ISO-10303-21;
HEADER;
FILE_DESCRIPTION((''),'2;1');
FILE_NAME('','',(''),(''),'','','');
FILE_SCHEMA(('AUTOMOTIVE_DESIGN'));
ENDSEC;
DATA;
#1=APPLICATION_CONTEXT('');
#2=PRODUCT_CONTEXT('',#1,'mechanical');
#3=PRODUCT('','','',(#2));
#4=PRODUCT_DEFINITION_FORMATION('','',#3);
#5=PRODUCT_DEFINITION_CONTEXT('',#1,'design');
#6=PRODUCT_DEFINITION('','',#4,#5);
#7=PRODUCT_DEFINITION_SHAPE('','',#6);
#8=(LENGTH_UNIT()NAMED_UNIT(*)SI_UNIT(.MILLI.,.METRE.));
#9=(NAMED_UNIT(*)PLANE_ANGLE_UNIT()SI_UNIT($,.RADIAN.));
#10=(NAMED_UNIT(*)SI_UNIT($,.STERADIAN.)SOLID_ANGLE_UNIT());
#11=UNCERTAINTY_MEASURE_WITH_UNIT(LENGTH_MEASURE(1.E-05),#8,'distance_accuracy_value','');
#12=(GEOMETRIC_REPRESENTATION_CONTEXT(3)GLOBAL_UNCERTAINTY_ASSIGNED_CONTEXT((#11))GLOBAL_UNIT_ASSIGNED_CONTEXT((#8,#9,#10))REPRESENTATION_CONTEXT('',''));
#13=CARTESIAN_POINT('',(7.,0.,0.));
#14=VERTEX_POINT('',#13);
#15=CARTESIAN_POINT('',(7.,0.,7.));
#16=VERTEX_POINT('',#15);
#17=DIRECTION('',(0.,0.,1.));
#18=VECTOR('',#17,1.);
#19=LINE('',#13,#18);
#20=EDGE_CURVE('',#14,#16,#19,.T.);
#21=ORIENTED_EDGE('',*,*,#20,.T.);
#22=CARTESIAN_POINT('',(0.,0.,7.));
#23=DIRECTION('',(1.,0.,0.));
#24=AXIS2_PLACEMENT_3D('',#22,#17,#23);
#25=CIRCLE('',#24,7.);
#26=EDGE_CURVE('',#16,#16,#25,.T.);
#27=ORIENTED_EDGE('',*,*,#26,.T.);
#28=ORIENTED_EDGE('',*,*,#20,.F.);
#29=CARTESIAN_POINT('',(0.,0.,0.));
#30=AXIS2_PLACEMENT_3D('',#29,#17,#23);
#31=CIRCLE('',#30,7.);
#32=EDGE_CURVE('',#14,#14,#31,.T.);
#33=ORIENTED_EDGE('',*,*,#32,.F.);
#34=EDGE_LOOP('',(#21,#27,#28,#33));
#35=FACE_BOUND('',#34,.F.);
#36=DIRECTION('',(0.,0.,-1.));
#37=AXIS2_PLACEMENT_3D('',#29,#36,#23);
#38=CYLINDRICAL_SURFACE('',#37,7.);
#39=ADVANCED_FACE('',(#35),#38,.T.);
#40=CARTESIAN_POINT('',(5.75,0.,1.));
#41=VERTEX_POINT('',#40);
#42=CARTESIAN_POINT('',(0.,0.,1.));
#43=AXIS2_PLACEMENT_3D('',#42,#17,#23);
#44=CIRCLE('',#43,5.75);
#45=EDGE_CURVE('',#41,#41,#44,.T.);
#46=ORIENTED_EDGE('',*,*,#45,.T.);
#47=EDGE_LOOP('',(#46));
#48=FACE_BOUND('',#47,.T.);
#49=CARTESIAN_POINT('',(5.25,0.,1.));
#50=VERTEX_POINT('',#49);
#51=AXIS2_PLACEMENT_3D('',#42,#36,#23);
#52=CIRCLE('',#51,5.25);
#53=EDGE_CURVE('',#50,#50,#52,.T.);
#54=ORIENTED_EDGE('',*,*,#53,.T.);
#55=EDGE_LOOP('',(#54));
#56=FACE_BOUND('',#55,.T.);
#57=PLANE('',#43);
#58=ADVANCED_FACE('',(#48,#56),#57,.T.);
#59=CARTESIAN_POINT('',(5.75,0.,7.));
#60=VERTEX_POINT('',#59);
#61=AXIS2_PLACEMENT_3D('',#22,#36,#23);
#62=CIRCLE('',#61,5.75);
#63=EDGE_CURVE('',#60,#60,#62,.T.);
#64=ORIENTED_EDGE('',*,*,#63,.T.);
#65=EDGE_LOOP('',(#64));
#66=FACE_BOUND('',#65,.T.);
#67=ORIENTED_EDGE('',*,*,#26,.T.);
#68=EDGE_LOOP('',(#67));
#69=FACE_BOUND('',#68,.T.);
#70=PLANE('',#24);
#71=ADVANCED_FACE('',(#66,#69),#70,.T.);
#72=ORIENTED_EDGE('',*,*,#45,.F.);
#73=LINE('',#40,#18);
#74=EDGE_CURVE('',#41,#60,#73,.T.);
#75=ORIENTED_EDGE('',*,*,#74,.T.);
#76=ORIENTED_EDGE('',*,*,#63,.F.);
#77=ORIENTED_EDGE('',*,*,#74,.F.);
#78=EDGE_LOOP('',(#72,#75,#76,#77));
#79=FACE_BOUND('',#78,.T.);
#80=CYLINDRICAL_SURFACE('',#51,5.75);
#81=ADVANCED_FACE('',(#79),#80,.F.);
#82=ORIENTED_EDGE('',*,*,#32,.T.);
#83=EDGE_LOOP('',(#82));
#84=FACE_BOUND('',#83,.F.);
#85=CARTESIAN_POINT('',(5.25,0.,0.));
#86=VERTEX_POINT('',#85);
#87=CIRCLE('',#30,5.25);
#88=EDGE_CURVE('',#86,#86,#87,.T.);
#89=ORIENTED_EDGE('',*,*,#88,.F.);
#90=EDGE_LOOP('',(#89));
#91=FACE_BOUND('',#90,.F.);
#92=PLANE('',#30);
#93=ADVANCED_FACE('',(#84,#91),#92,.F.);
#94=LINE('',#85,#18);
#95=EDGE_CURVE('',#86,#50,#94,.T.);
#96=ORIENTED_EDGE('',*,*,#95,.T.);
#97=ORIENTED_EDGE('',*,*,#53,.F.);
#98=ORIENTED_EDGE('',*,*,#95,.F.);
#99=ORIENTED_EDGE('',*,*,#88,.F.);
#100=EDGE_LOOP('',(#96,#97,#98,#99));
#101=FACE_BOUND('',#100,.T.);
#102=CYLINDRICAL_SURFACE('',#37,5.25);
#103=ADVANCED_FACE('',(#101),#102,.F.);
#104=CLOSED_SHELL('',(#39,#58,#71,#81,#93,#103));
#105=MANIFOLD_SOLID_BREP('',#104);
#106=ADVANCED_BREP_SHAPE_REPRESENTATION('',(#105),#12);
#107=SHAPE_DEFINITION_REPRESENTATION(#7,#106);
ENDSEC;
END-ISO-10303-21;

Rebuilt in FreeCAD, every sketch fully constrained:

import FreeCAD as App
import Part
import Sketcher

V = App.Vector

doc = App.newDocument("Part")
body = doc.addObject("PartDesign::Body", "Body")

sketch1 = body.newObject("Sketcher::SketchObject", "Sketch")
sketch1.AttachmentSupport = (doc.getObject("XY_Plane"), [""])
sketch1.MapMode = "FlatFace"
sketch1.addGeometry(Part.Circle(V(0, 0, 0), V(0, 0, 1), 5), False)
sketch1.addConstraint([
    Sketcher.Constraint("Coincident", 0, 3, -1, 1),
    Sketcher.Constraint("Diameter", 0, 10.5),
])
pad1 = body.newObject("PartDesign::Pad", "Pad")
pad1.Profile = sketch1
pad1.Length = 10
body2 = doc.addObject("PartDesign::Body", "Body001")

sketch2 = body2.newObject("Sketcher::SketchObject", "Sketch001")
sketch2.AttachmentSupport = (doc.getObject("XY_Plane001"), [""])
sketch2.MapMode = "FlatFace"
sketch2.AttachmentOffset = App.Placement(V(0, 0, 1), App.Rotation())
sketch2.addGeometry(Part.Circle(V(0, 0, 0), V(0, 0, 1), 6), False)
sketch2.addConstraint([
    Sketcher.Constraint("Coincident", 0, 3, -1, 1),
    Sketcher.Constraint("Diameter", 0, 11.5),
])
pad2 = body2.newObject("PartDesign::Pad", "Pad001")
pad2.Profile = sketch2
pad2.Length = 10
body3 = doc.addObject("PartDesign::Body", "Body002")

sketch3 = body3.newObject("Sketcher::SketchObject", "Sketch002")
sketch3.AttachmentSupport = (doc.getObject("XY_Plane002"), [""])
sketch3.MapMode = "FlatFace"
sketch3.addGeometry(Part.Circle(V(0, 0, 0), V(0, 0, 1), 7), False)
sketch3.addConstraint([
    Sketcher.Constraint("Coincident", 0, 3, -1, 1),
    Sketcher.Constraint("Diameter", 0, 14.0),
])
pad3 = body3.newObject("PartDesign::Pad", "Pad002")
pad3.Profile = sketch3
pad3.Length = 7
doc.recompute()

boolean = body3.newObject("PartDesign::Boolean", "Boolean")
boolean.Type = "Cut"
boolean.addObjects([body2])
doc.recompute()

boolean2 = body3.newObject("PartDesign::Boolean", "Boolean001")
boolean2.Type = "Cut"
boolean2.addObjects([body])

doc.recompute()
